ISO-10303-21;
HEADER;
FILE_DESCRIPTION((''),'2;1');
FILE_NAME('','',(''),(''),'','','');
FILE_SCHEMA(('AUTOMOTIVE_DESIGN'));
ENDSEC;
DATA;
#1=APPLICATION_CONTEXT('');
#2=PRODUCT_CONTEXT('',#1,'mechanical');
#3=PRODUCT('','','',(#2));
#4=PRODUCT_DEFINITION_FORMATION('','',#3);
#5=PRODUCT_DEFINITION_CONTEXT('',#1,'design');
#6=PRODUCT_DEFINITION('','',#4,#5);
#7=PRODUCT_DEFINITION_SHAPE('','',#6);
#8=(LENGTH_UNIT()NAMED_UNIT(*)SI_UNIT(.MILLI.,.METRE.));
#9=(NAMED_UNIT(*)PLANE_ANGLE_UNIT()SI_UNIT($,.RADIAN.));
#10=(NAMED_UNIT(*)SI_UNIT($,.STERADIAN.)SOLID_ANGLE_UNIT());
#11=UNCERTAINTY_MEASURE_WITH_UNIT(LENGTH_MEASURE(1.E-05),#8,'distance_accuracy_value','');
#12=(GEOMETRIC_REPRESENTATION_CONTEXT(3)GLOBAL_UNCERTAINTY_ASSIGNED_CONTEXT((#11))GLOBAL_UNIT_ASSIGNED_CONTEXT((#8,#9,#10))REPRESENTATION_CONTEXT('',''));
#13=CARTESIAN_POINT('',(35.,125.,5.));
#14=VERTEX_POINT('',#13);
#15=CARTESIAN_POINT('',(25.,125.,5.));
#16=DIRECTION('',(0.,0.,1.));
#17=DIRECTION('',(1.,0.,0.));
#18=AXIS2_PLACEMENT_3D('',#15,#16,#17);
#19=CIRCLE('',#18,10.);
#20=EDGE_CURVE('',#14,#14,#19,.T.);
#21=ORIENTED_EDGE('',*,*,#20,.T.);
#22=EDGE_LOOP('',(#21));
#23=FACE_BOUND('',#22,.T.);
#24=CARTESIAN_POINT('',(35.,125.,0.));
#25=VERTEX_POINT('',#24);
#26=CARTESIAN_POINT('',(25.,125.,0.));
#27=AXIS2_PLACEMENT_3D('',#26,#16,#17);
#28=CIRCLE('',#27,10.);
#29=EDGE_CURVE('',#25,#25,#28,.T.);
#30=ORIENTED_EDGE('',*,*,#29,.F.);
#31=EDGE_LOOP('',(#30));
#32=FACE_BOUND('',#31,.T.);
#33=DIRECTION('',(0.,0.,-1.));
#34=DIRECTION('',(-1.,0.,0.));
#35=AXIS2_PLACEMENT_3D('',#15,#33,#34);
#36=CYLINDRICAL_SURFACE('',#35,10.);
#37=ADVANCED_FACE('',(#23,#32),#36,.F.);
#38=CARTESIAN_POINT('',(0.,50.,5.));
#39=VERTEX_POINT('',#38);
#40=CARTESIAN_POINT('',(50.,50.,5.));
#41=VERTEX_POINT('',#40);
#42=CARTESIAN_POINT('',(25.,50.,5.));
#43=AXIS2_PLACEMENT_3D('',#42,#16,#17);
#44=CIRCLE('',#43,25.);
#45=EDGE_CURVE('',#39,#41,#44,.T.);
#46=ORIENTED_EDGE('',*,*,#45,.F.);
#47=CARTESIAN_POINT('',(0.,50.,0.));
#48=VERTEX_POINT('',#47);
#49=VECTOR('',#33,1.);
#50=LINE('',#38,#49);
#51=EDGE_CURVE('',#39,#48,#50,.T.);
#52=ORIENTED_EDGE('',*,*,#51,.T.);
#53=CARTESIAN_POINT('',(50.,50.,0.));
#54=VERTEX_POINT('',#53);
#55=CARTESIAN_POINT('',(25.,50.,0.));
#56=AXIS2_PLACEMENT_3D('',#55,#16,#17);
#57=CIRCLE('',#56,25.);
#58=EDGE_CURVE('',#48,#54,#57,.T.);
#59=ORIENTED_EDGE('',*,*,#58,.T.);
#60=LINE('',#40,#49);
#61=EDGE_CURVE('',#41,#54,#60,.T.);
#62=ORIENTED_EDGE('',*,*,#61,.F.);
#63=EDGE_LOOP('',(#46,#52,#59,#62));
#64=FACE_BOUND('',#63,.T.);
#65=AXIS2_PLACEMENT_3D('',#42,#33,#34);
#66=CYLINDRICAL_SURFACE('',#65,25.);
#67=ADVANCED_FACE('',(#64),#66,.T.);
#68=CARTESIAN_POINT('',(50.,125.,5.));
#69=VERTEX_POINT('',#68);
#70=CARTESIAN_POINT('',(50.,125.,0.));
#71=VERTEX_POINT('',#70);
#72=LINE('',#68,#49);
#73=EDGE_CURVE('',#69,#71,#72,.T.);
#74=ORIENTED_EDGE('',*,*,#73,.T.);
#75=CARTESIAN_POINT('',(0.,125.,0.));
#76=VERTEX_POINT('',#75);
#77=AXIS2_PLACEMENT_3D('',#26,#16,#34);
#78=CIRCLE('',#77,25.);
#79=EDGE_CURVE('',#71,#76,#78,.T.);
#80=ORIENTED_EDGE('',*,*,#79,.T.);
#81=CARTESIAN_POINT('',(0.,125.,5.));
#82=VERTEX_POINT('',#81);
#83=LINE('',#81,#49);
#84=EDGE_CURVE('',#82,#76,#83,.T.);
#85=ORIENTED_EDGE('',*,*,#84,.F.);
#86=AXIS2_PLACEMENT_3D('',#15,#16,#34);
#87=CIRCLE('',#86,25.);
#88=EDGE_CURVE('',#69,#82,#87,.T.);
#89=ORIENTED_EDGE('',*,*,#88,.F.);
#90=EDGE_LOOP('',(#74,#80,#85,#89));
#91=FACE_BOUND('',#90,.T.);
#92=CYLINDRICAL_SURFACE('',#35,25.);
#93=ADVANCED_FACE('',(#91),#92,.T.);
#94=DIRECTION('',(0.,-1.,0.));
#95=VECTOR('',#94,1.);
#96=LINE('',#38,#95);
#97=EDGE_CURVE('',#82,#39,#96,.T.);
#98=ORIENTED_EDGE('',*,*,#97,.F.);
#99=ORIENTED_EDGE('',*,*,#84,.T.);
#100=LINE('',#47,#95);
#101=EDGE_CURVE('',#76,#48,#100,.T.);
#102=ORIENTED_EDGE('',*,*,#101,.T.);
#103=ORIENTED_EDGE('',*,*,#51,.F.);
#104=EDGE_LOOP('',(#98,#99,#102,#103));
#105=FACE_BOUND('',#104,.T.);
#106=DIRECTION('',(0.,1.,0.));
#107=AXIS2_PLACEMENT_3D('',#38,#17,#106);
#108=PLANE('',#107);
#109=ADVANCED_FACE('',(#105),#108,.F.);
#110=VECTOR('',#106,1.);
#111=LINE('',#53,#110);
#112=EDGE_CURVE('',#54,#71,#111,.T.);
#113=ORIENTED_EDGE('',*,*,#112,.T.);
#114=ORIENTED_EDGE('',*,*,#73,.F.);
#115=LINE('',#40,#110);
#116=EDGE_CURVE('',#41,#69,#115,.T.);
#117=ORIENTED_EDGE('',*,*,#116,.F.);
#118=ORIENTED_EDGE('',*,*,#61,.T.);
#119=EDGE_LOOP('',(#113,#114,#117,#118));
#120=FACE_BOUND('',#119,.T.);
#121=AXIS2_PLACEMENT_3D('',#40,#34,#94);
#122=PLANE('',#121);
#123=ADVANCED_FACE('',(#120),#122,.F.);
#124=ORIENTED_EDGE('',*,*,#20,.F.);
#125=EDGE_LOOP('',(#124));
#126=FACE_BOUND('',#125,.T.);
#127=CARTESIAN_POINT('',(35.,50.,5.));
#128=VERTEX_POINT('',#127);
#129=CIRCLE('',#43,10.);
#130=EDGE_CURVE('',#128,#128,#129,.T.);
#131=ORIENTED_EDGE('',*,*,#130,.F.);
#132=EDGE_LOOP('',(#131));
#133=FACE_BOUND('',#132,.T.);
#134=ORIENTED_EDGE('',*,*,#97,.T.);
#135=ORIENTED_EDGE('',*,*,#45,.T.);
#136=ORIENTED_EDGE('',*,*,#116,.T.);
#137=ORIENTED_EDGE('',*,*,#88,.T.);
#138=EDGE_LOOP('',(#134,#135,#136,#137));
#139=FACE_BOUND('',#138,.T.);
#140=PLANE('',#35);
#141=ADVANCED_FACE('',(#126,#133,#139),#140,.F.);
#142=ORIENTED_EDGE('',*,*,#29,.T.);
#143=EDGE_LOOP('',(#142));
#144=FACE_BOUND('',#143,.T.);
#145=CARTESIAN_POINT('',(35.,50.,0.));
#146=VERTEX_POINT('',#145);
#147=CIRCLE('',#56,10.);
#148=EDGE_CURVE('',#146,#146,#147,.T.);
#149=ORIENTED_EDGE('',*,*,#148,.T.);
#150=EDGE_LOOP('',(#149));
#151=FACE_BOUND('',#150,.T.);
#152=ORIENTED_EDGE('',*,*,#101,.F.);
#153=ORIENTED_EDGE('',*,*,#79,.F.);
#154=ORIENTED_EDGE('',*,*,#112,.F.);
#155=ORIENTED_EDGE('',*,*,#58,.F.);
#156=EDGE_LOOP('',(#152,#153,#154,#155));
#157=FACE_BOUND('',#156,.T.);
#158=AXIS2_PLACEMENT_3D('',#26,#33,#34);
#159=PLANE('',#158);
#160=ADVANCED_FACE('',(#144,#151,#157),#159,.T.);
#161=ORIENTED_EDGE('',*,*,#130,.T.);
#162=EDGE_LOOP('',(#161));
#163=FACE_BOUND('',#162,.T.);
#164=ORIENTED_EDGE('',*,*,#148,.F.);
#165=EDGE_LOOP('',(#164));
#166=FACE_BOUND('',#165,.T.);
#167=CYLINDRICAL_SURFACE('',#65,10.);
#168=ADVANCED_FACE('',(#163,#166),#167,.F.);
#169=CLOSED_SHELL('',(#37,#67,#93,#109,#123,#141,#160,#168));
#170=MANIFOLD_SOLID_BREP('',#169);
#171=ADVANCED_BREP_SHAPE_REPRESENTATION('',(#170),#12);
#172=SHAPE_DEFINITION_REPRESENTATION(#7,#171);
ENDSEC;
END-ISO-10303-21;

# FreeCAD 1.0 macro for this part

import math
import FreeCAD as App
import Part
import Sketcher
Q = App.Units.Quantity

doc = App.newDocument("Part")
params = doc.addObject("Spreadsheet::Sheet", "Params")
for row, (alias, value) in enumerate([
    ("sketch1_diameter", "20 mm"),
    ("sketch1_radius", "25 mm"),
    ("sketch1_height", "75 mm"),
    ("pad1_length", "5 mm"),
], start=1):
    params.set(f"A{row}", alias)
    params.set(f"B{row}", "=" + value)
    params.setAlias(f"B{row}", alias)

body = doc.addObject("PartDesign::Body", "Body")

# Sketch on XY plane
sketch1 = doc.addObject("Sketcher::SketchObject", "Sketch")
body.addObject(sketch1)
sketch1.AttachmentSupport = (doc.XY_Plane, [""])
sketch1.MapMode = "FlatFace"
sketch1.addGeometry(Part.LineSegment(App.Vector(0, 125, 0), App.Vector(0, 50, 0)), False)
sketch1.addGeometry(Part.ArcOfCircle(Part.Circle(App.Vector(25, 50, 0), App.Vector(0, 0, 1), 25), math.radians(180), math.radians(360)), False)
sketch1.addGeometry(Part.LineSegment(App.Vector(50, 50, 0), App.Vector(50, 125, 0)), False)
sketch1.addGeometry(Part.ArcOfCircle(Part.Circle(App.Vector(25, 125, 0), App.Vector(0, 0, 1), 25), math.radians(0), math.radians(180)), False)
sketch1.addGeometry(Part.Circle(App.Vector(25, 50, 0), App.Vector(0, 0, 1), 10), False)
sketch1.addGeometry(Part.Circle(App.Vector(25, 125, 0), App.Vector(0, 0, 1), 10), False)
sketch1.addConstraint(Sketcher.Constraint("Tangent", 0, 2, 1, 1))
sketch1.addConstraint(Sketcher.Constraint("Tangent", 1, 2, 2, 1))
sketch1.addConstraint(Sketcher.Constraint("Tangent", 2, 2, 3, 1))
sketch1.addConstraint(Sketcher.Constraint("Tangent", 3, 2, 0, 1))
sketch1.addConstraint(Sketcher.Constraint("Vertical", 0))
sketch1.addConstraint(Sketcher.Constraint("Vertical", 2))
sketch1.addConstraint(Sketcher.Constraint("Coincident", 4, 3, 1, 3))
sketch1.addConstraint(Sketcher.Constraint("Coincident", 5, 3, 3, 3))
sketch1.addConstraint(Sketcher.Constraint("Equal", 4, 5))
sketch1.addConstraint(Sketcher.Constraint("PointOnObject", 0, 2, -2))
sketch1.addConstraint(Sketcher.Constraint("Diameter", 4, Q("20 mm")))
sketch1.addConstraint(Sketcher.Constraint("Radius", 1, Q("25 mm")))
sketch1.addConstraint(Sketcher.Constraint("DistanceY", 0, 2, 0, 1, Q("75 mm")))
sketch1.addConstraint(Sketcher.Constraint("DistanceY", -1, 1, 1, 3, Q("50 mm")))
sketch1.setExpression("Constraints[10]", "Params.sketch1_diameter")
sketch1.setExpression("Constraints[11]", "Params.sketch1_radius")
sketch1.setExpression("Constraints[12]", "Params.sketch1_height")
pad1 = doc.addObject("PartDesign::Pad", "Pad")
body.addObject(pad1)
pad1.Profile = sketch1
pad1.setExpression("Length", "Params.pad1_length")

doc.recompute()
